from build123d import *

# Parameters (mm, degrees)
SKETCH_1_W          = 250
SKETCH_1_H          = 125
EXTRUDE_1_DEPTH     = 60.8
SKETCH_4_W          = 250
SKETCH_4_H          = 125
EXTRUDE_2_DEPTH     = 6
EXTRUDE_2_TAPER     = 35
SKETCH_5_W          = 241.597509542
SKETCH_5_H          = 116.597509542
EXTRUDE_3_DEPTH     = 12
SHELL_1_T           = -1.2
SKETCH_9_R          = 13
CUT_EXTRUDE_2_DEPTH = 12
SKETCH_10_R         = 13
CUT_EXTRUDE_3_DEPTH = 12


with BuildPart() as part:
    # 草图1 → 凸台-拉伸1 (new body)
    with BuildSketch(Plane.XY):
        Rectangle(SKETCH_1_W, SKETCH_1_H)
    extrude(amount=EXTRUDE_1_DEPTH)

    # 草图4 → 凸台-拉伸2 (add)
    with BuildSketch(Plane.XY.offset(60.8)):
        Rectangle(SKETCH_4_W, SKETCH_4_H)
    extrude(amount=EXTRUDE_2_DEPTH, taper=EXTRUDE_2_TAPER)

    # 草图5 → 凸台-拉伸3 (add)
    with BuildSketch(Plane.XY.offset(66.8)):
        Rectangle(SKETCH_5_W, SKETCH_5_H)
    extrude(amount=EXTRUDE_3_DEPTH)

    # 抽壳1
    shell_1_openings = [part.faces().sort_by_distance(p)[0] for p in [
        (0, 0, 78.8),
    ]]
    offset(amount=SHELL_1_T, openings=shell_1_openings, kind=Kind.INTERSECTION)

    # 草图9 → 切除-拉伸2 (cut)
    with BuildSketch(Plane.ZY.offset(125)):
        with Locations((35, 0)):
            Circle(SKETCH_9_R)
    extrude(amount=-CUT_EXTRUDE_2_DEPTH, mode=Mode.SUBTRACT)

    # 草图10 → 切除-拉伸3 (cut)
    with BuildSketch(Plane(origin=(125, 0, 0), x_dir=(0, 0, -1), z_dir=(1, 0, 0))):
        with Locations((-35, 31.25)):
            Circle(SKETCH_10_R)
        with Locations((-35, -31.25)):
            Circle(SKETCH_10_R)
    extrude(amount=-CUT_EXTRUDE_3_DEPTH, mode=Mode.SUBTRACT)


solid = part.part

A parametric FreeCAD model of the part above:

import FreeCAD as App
import Part
import Sketcher
Q = App.Units.Quantity


def faces_at(feature, points):
    """Names of the faces that lie closest to the given points."""
    faces = feature.Shape.Faces
    near = lambda p: min(range(len(faces)), key=lambda i: faces[i].distToShape(Part.Vertex(*p))[0])
    return sorted({f"Face{near(p) + 1}" for p in points})


def add_polygon(sketch, points):
    """Adds a closed chain of lines whose ends are joined by coincident constraints."""
    first, n = sketch.GeometryCount, len(points)
    for a, b in zip(points, points[1:] + points[:1]):
        sketch.addGeometry(Part.LineSegment(App.Vector(*a, 0), App.Vector(*b, 0)), False)
    for i in range(n):
        sketch.addConstraint(Sketcher.Constraint("Coincident", first + i, 2, first + (i + 1) % n, 1))

doc = App.newDocument("Part")
body = doc.addObject("PartDesign::Body", "Body")

# Sketch on XY plane
sketch1 = doc.addObject("Sketcher::SketchObject", "Sketch")
body.addObject(sketch1)
sketch1.AttachmentSupport = (doc.XY_Plane, [""])
sketch1.MapMode = "FlatFace"
add_polygon(sketch1, [(-125, 62.5), (-125, -62.5), (125, -62.5), (125, 62.5)])  # lines 0-3
sketch1.addConstraint([
    Sketcher.Constraint("Vertical", 0),
    Sketcher.Constraint("Horizontal", 1),
    Sketcher.Constraint("Vertical", 2),
    Sketcher.Constraint("Horizontal", 3),
    Sketcher.Constraint("Symmetric", 0, 2, 2, 2, -1, 1),
    Sketcher.Constraint("DistanceX", 1, 1, 1, 2, Q("250 mm")),
    Sketcher.Constraint("DistanceY", 0, 2, 0, 1, Q("125 mm")),
])
pad1 = doc.addObject("PartDesign::Pad", "Pad")
body.addObject(pad1)
pad1.Profile = sketch1
pad1.Length = 60.8

# Sketch on XY plane
sketch2 = doc.addObject("Sketcher::SketchObject", "Sketch001")
body.addObject(sketch2)
sketch2.AttachmentSupport = (doc.XY_Plane, [""])
sketch2.MapMode = "FlatFace"
sketch2.AttachmentOffset = App.Placement(App.Vector(0, 0, 60.8), App.Rotation())
add_polygon(sketch2, [(-125, 62.5), (-125, -62.5), (125, -62.5), (125, 62.5)])  # lines 0-3
sketch2.addConstraint([
    Sketcher.Constraint("Vertical", 0),
    Sketcher.Constraint("Horizontal", 1),
    Sketcher.Constraint("Vertical", 2),
    Sketcher.Constraint("Horizontal", 3),
    Sketcher.Constraint("Symmetric", 0, 2, 2, 2, -1, 1),
    Sketcher.Constraint("DistanceX", 1, 1, 1, 2, Q("250 mm")),
    Sketcher.Constraint("DistanceY", 0, 2, 0, 1, Q("125 mm")),
])
pad2 = doc.addObject("PartDesign::Pad", "Pad001")
body.addObject(pad2)
pad2.Profile = sketch2
pad2.Length = 6
pad2.TaperAngle = -35

# Sketch on XY plane
sketch3 = doc.addObject("Sketcher::SketchObject", "Sketch002")
body.addObject(sketch3)
sketch3.AttachmentSupport = (doc.XY_Plane, [""])
sketch3.MapMode = "FlatFace"
sketch3.AttachmentOffset = App.Placement(App.Vector(0, 0, 66.8), App.Rotation())
add_polygon(sketch3, [(-120.798755, 58.298755), (-120.798755, -58.298755), (120.798755, -58.298755), (120.798755, 58.298755)])  # lines 0-3
sketch3.addConstraint([
    Sketcher.Constraint("Vertical", 0),
    Sketcher.Constraint("Horizontal", 1),
    Sketcher.Constraint("Vertical", 2),
    Sketcher.Constraint("Horizontal", 3),
    Sketcher.Constraint("Symmetric", 0, 2, 2, 2, -1, 1),
    Sketcher.Constraint("DistanceX", 1, 1, 1, 2, Q("241.59751 mm")),
    Sketcher.Constraint("DistanceY", 0, 2, 0, 1, Q("116.59751 mm")),
])
pad3 = doc.addObject("PartDesign::Pad", "Pad002")
body.addObject(pad3)
pad3.Profile = sketch3
pad3.Length = 12
doc.recompute()

thickness = doc.addObject("PartDesign::Thickness", "Thickness")
body.addObject(thickness)
thickness.Base = (pad3, faces_at(pad3, [(0, 0, 78.8)]))
thickness.Value = 1.2
thickness.Reversed = True
thickness.Join = "Intersection"

# Sketch on YZ plane
sketch4 = doc.addObject("Sketcher::SketchObject", "Sketch003")
body.addObject(sketch4)
sketch4.AttachmentSupport = (doc.YZ_Plane, [""])
sketch4.MapMode = "FlatFace"
sketch4.AttachmentOffset = App.Placement(App.Vector(0, 0, -125), App.Rotation())
sketch4.addGeometry(Part.Circle(App.Vector(0, 35, 0), App.Vector(0, 0, 1), 13), False)
sketch4.addConstraint([
    Sketcher.Constraint("PointOnObject", 0, 3, -2),
    Sketcher.Constraint("Diameter", 0, Q("26 mm")),
    Sketcher.Constraint("DistanceY", -1, 1, 0, 3, Q("35 mm")),
])
pocket1 = doc.addObject("PartDesign::Pocket", "Pocket")
body.addObject(pocket1)
pocket1.Profile = sketch4
pocket1.Length = 12
pocket1.Reversed = True

# Sketch on YZ plane
sketch5 = doc.addObject("Sketcher::SketchObject", "Sketch004")
body.addObject(sketch5)
sketch5.AttachmentSupport = (doc.YZ_Plane, [""])
sketch5.MapMode = "FlatFace"
sketch5.AttachmentOffset = App.Placement(App.Vector(0, 0, 125), App.Rotation())
sketch5.addGeometry([
    Part.Circle(App.Vector(31.25, 35, 0), App.Vector(0, 0, 1), 13),
    Part.Circle(App.Vector(-31.25, 35, 0), App.Vector(0, 0, 1), 13),
], False)
sketch5.addConstraint([
    Sketcher.Constraint("Equal", 0, 1),
    Sketcher.Constraint("Symmetric", 0, 3, 1, 3, -2),
    Sketcher.Constraint("Diameter", 0, Q("26 mm")),
    Sketcher.Constraint("DistanceY", -1, 1, 0, 3, Q("35 mm")),
    Sketcher.Constraint("DistanceX", 1, 3, 0, 3, Q("62.5 mm")),
])
pocket2 = doc.addObject("PartDesign::Pocket", "Pocket001")
body.addObject(pocket2)
pocket2.Profile = sketch5
pocket2.Length = 12

doc.recompute()
